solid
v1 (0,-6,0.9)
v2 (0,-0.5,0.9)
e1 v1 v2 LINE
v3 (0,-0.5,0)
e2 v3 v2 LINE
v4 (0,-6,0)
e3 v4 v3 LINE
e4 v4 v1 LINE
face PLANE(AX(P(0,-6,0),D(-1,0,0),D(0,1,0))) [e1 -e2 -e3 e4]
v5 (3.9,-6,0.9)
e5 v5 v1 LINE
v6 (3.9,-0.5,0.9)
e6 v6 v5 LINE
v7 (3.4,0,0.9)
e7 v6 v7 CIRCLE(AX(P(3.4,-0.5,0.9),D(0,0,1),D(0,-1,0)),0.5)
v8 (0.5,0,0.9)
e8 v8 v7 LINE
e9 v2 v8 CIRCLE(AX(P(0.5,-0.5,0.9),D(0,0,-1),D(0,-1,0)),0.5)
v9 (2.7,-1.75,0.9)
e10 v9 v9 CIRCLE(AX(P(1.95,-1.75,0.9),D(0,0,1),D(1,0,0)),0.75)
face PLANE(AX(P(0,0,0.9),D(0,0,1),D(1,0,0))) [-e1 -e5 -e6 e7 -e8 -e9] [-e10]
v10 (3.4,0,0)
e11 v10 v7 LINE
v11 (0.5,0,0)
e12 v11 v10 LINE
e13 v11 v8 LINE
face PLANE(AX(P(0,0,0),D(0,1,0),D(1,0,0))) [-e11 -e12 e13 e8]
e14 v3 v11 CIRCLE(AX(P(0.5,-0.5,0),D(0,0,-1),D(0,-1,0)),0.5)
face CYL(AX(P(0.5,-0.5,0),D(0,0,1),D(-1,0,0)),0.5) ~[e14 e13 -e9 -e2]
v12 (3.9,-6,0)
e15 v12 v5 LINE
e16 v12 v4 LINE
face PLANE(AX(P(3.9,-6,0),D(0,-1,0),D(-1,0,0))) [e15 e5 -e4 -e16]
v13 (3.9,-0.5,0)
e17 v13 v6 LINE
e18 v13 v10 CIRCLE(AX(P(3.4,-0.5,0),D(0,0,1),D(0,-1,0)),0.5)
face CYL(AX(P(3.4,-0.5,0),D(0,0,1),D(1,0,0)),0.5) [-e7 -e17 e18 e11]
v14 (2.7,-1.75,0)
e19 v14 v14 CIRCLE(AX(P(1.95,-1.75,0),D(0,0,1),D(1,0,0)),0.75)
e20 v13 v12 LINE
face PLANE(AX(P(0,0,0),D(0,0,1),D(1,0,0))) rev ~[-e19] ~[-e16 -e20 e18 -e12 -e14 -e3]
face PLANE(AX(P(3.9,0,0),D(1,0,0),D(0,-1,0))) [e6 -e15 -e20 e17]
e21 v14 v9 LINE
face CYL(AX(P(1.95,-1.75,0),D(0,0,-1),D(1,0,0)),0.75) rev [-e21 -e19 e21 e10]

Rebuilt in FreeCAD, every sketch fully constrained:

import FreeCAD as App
import Part
import Sketcher

V = App.Vector
Q = App.Units.Quantity


def edges_at(feature, points):
    """Names of the edges that pass closest to the given points."""
    edges = feature.Shape.Edges
    near = lambda p: min(range(len(edges)), key=lambda i: edges[i].distToShape(Part.Vertex(*p))[0])
    return sorted({f"Edge{near(p) + 1}" for p in points})


def add_polygon(sketch, points):
    """Adds a closed chain of lines whose ends are joined by coincident constraints."""
    first, n = sketch.GeometryCount, len(points)
    for a, b in zip(points, points[1:] + points[:1]):
        sketch.addGeometry(Part.LineSegment(App.Vector(*a, 0), App.Vector(*b, 0)), False)
    for i in range(n):
        sketch.addConstraint(Sketcher.Constraint("Coincident", first + i, 2, first + (i + 1) % n, 1))

doc = App.newDocument("Part")
body = doc.addObject("PartDesign::Body", "Body")

# Sketch on XY plane
sketch1 = body.newObject("Sketcher::SketchObject", "Sketch")
sketch1.AttachmentSupport = (doc.getObject("XY_Plane"), [""])
sketch1.MapMode = "FlatFace"
add_polygon(sketch1, [(3.9, -6), (3.9, 0), (0, 0), (0, -6)])  # lines 0-3
sketch1.addGeometry(Part.Circle(V(1.95, -1.75, 0), V(0, 0, 1), 0.75), False)  # 4
sketch1.addConstraint(Sketcher.Constraint("Vertical", 0))
sketch1.addConstraint(Sketcher.Constraint("Horizontal", 1))
sketch1.addConstraint(Sketcher.Constraint("Vertical", 2))
sketch1.addConstraint(Sketcher.Constraint("Horizontal", 3))
sketch1.addConstraint(Sketcher.Constraint("Coincident", 1, 2, -1, 1))
sketch1.addConstraint(Sketcher.Constraint("Diameter", 4, Q("1.5 mm")))
sketch1.addConstraint(Sketcher.Constraint("DistanceY", 0, 1, 0, 2, Q("6 mm")))
sketch1.addConstraint(Sketcher.Constraint("DistanceX", 1, 2, 1, 1, Q("3.9 mm")))
sketch1.addConstraint(Sketcher.Constraint("DistanceX", -1, 1, 4, 3, Q("1.95 mm")))
sketch1.addConstraint(Sketcher.Constraint("DistanceY", 4, 3, -1, 1, Q("1.75 mm")))
pad1 = body.newObject("PartDesign::Pad", "Pad")
pad1.Profile = sketch1
pad1.Length = 0.9
doc.recompute()

fillet = body.newObject("PartDesign::Fillet", "Fillet")
fillet.Base = (pad1, edges_at(pad1, [(3.9, 0, 0.45), (0, 0, 0.45)]))
fillet.Radius = 0.5

doc.recompute()
